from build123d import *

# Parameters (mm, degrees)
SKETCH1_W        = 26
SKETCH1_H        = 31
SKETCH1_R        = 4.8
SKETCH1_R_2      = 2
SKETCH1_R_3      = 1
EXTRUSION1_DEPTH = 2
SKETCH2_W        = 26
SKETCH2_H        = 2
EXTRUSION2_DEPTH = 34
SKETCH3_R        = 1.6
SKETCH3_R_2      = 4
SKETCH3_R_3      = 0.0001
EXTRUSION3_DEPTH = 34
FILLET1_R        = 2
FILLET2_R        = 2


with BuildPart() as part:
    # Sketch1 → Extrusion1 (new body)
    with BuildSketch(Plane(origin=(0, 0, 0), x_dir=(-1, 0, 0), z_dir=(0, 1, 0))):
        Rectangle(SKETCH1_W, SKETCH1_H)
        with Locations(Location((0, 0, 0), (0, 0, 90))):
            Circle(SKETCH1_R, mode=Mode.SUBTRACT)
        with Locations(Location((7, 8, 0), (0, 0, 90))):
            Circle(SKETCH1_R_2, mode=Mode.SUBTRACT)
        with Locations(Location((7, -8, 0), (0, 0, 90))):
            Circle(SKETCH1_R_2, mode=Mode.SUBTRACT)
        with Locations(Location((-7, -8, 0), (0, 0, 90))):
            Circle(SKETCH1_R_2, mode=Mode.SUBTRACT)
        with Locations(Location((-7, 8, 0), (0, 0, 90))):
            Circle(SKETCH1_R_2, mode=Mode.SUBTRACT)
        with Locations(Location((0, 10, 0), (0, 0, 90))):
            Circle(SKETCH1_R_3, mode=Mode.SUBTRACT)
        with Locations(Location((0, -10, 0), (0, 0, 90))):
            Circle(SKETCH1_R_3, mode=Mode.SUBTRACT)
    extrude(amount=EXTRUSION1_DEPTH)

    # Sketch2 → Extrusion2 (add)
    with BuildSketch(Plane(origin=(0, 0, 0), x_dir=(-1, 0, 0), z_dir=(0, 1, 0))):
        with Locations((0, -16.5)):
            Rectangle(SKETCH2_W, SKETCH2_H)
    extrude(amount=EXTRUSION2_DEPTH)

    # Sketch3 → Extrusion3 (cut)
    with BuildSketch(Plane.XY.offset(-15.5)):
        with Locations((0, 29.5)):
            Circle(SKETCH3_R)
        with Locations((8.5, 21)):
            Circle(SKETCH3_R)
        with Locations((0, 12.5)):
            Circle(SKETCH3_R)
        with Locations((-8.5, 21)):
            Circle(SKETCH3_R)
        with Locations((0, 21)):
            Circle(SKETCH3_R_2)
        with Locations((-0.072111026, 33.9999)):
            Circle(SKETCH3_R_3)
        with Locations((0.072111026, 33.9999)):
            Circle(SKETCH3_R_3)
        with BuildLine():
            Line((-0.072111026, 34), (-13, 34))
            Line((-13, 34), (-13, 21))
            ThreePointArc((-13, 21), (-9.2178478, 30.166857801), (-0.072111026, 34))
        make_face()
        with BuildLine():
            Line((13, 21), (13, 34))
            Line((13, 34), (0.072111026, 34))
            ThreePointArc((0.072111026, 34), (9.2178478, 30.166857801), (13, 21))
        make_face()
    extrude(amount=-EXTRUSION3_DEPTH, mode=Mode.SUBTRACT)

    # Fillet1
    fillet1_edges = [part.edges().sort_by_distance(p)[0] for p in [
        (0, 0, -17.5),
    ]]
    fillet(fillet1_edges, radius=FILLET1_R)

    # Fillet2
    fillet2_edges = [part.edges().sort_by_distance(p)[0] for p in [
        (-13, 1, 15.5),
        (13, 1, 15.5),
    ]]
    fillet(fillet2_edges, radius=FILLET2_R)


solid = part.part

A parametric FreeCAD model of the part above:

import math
import FreeCAD as App
import Part
import Sketcher

V = App.Vector


def edges_at(feature, points):
    """Names of the edges that pass closest to the given points."""
    edges = feature.Shape.Edges
    near = lambda p: min(range(len(edges)), key=lambda i: edges[i].distToShape(Part.Vertex(*p))[0])
    return sorted({f"Edge{near(p) + 1}" for p in points})

doc = App.newDocument("Part")
body = doc.addObject("PartDesign::Body", "Body")

# Sketch on XZ plane
sketch1 = body.newObject("Sketcher::SketchObject", "Sketch")
sketch1.AttachmentSupport = (doc.getObject("XZ_Plane"), [""])
sketch1.MapMode = "FlatFace"
sketch1.addGeometry([
    Part.LineSegment(V(13, 15.5, 0), V(13, -15.5, 0)),  # 0
    Part.LineSegment(V(13, -15.5, 0), V(-13, -15.5, 0)),  # 1
    Part.LineSegment(V(-13, -15.5, 0), V(-13, 15.5, 0)),  # 2
    Part.LineSegment(V(-13, 15.5, 0), V(13, 15.5, 0)),  # 3
    Part.Circle(V(7, -8, 0), V(0, 0, 1), 2),  # 4
    Part.Circle(V(0, -10, 0), V(0, 0, 1), 1),  # 5
    Part.Circle(V(-7, -8, 0), V(0, 0, 1), 2),  # 6
    Part.Circle(V(7, 8, 0), V(0, 0, 1), 2),  # 7
    Part.Circle(V(0, 0, 0), V(0, 0, 1), 4.8),  # 8
    Part.Circle(V(0, 10, 0), V(0, 0, 1), 1),  # 9
    Part.Circle(V(-7, 8, 0), V(0, 0, 1), 2),  # 10
], False)
sketch1.addConstraint([
    Sketcher.Constraint("Coincident", 0, 2, 1, 1),
    Sketcher.Constraint("Coincident", 1, 2, 2, 1),
    Sketcher.Constraint("Coincident", 2, 2, 3, 1),
    Sketcher.Constraint("Coincident", 3, 2, 0, 1),
    Sketcher.Constraint("Vertical", 0),
    Sketcher.Constraint("Horizontal", 1),
    Sketcher.Constraint("Vertical", 2),
    Sketcher.Constraint("Horizontal", 3),
    Sketcher.Constraint("Coincident", 8, 3, -1, 1),
    Sketcher.Constraint("Equal", 4, 6),
    Sketcher.Constraint("Equal", 6, 7),
    Sketcher.Constraint("Equal", 5, 9),
    Sketcher.Constraint("Equal", 7, 10),
    Sketcher.Constraint("Symmetric", 6, 3, 7, 3, -1, 1),
    Sketcher.Constraint("Symmetric", 5, 3, 9, 3, -1, 1),
    Sketcher.Constraint("Symmetric", 4, 3, 10, 3, -1, 1),
    Sketcher.Constraint("Symmetric", 0, 2, 2, 2, -1, 1),
    Sketcher.Constraint("Symmetric", 4, 3, 6, 3, -2),
    Sketcher.Constraint("PointOnObject", 5, 3, -2),
    Sketcher.Constraint("Diameter", 4, 4.0),
    Sketcher.Constraint("Diameter", 5, 2.0),
    Sketcher.Constraint("Diameter", 8, 9.6),
    Sketcher.Constraint("DistanceX", 1, 2, 1, 1, 26.0),
    Sketcher.Constraint("DistanceY", 0, 2, 0, 1, 31.0),
    Sketcher.Constraint("DistanceX", -1, 1, 4, 3, 7.0),
    Sketcher.Constraint("DistanceY", 4, 3, -1, 1, 8.0),
    Sketcher.Constraint("DistanceY", 5, 3, -1, 1, 10.0),
])
pad1 = body.newObject("PartDesign::Pad", "Pad")
pad1.Profile = sketch1
pad1.Length = 2
pad1.Reversed = True

# Sketch on XZ plane
sketch2 = body.newObject("Sketcher::SketchObject", "Sketch001")
sketch2.AttachmentSupport = (doc.getObject("XZ_Plane"), [""])
sketch2.MapMode = "FlatFace"
sketch2.addGeometry([
    Part.LineSegment(V(13, -15.5, 0), V(13, -17.5, 0)),
    Part.LineSegment(V(13, -17.5, 0), V(-13, -17.5, 0)),
    Part.LineSegment(V(-13, -17.5, 0), V(-13, -15.5, 0)),
    Part.LineSegment(V(-13, -15.5, 0), V(13, -15.5, 0)),
], False)
sketch2.addConstraint([
    Sketcher.Constraint("Coincident", 0, 2, 1, 1),
    Sketcher.Constraint("Coincident", 1, 2, 2, 1),
    Sketcher.Constraint("Coincident", 2, 2, 3, 1),
    Sketcher.Constraint("Coincident", 3, 2, 0, 1),
    Sketcher.Constraint("Vertical", 0),
    Sketcher.Constraint("Horizontal", 1),
    Sketcher.Constraint("Vertical", 2),
    Sketcher.Constraint("Horizontal", 3),
    Sketcher.Constraint("DistanceX", 1, 2, 1, 1, 26.0),
    Sketcher.Constraint("DistanceY", 0, 2, 0, 1, 2.0),
    Sketcher.Constraint("DistanceX", -1, 1, 0, 2, 13.0),
    Sketcher.Constraint("DistanceY", 0, 2, -1, 1, 17.5),
])
pad2 = body.newObject("PartDesign::Pad", "Pad001")
pad2.Profile = sketch2
pad2.Length = 34
pad2.Reversed = True

# Sketch on XY plane
sketch3 = body.newObject("Sketcher::SketchObject", "Sketch002")
sketch3.AttachmentSupport = (doc.getObject("XY_Plane"), [""])
sketch3.MapMode = "FlatFace"
sketch3.AttachmentOffset = App.Placement(V(0, 0, -15.5), App.Rotation())
sketch3.addGeometry([
    Part.Circle(V(0, 29.5, 0), V(0, 0, 1), 1.6),  # 0
    Part.Circle(V(8.5, 21, 0), V(0, 0, 1), 1.6),  # 1
    Part.Circle(V(0, 12.5, 0), V(0, 0, 1), 1.6),  # 2
    Part.Circle(V(-8.5, 21, 0), V(0, 0, 1), 1.6),  # 3
    Part.Circle(V(0, 21, 0), V(0, 0, 1), 4),  # 4
    Part.Circle(V(-0.072111, 33.9999, 0), V(0, 0, 1), 0.0001),  # 5
    Part.Circle(V(0.072111, 33.9999, 0), V(0, 0, 1), 0.0001),  # 6
    Part.LineSegment(V(-0.072111, 34, 0), V(-13, 34, 0)),  # 7
    Part.LineSegment(V(-13, 34, 0), V(-13, 21, 0)),  # 8
    Part.ArcOfCircle(Part.Circle(V(0.000344, 20.999858, 0), V(0, 0, 1), 13.000344), math.radians(90.319328), math.radians(179.999375)),  # 9
    Part.LineSegment(V(13, 21, 0), V(13, 34, 0)),  # 10
    Part.LineSegment(V(13, 34, 0), V(0.072111, 34, 0)),  # 11
    Part.ArcOfCircle(Part.Circle(V(-0.000344, 20.999858, 0), V(0, 0, 1), 13.000344), math.radians(0.000625), math.radians(89.680672)),  # 12
], False)
sketch3.addConstraint([
    Sketcher.Constraint("Coincident", 7, 2, 8, 1),
    Sketcher.Constraint("Coincident", 8, 2, 9, 2),
    Sketcher.Constraint("Coincident", 9, 1, 7, 1),
    Sketcher.Constraint("Coincident", 10, 2, 11, 1),
    Sketcher.Constraint("Coincident", 11, 2, 12, 2),
    Sketcher.Constraint("Coincident", 12, 1, 10, 1),
    Sketcher.Constraint("Horizontal", 7),
    Sketcher.Constraint("Vertical", 8),
    Sketcher.Constraint("Vertical", 10),
    Sketcher.Constraint("Horizontal", 11),
    Sketcher.Constraint("Equal", 0, 1),
    Sketcher.Constraint("Equal", 1, 2),
    Sketcher.Constraint("Equal", 2, 3),
    Sketcher.Constraint("Equal", 5, 6),
    Sketcher.Constraint("Equal", 9, 12),
    Sketcher.Constraint("Symmetric", 1, 3, 3, 3, -2),
    Sketcher.Constraint("Symmetric", 5, 3, 6, 3, -2),
    Sketcher.Constraint("Symmetric", 9, 3, 12, 3, -2),
    Sketcher.Constraint("PointOnObject", 0, 3, -2),
    Sketcher.Constraint("PointOnObject", 2, 3, -2),
    Sketcher.Constraint("PointOnObject", 4, 3, -2),
    Sketcher.Constraint("Horizontal", 3, 3, 4, 3),
    Sketcher.Constraint("Horizontal", 4, 3, 8, 2),
    Sketcher.Constraint("Horizontal", 9, 1, 10, 2),
    Sketcher.Constraint("Horizontal", 8, 2, 12, 1),
    Sketcher.Constraint("Vertical", 5, 3, 9, 1),
    Sketcher.Constraint("Diameter", 4, 8.0),
    Sketcher.Constraint("Diameter", 0, 3.2),
    Sketcher.Constraint("DistanceY", 8, 2, 8, 1, 13.0),
    Sketcher.Constraint("DistanceY", -1, 1, 1, 3, 21.0),
    Sketcher.Constraint("DistanceX", 7, 2, -1, 1, 13.0),
    Sketcher.Constraint("DistanceY", 2, 3, 0, 3, 17.0),
    Sketcher.Constraint("DistanceX", 3, 3, 1, 3, 17.0),
    Sketcher.Constraint("Diameter", 5, 0.0002),
    Sketcher.Constraint("DistanceY", -1, 1, 0, 3, 29.5),
    Sketcher.Constraint("Radius", 9, 13.000344),
    Sketcher.Constraint("DistanceX", 7, 2, 7, 1, 12.927889),
    Sketcher.Constraint("DistanceY", -1, 1, 5, 3, 33.9999),
])
pocket1 = body.newObject("PartDesign::Pocket", "Pocket")
pocket1.Profile = sketch3
pocket1.Length = 34
doc.recompute()

fillet = body.newObject("PartDesign::Fillet", "Fillet")
fillet.Base = (pocket1, edges_at(pocket1, [(0, 0, -17.5)]))
fillet.Radius = 2
doc.recompute()

fillet2 = body.newObject("PartDesign::Fillet", "Fillet001")
fillet2.Base = (fillet, edges_at(fillet, [(-13, 1, 15.5), (13, 1, 15.5)]))
fillet2.Radius = 2

doc.recompute()
